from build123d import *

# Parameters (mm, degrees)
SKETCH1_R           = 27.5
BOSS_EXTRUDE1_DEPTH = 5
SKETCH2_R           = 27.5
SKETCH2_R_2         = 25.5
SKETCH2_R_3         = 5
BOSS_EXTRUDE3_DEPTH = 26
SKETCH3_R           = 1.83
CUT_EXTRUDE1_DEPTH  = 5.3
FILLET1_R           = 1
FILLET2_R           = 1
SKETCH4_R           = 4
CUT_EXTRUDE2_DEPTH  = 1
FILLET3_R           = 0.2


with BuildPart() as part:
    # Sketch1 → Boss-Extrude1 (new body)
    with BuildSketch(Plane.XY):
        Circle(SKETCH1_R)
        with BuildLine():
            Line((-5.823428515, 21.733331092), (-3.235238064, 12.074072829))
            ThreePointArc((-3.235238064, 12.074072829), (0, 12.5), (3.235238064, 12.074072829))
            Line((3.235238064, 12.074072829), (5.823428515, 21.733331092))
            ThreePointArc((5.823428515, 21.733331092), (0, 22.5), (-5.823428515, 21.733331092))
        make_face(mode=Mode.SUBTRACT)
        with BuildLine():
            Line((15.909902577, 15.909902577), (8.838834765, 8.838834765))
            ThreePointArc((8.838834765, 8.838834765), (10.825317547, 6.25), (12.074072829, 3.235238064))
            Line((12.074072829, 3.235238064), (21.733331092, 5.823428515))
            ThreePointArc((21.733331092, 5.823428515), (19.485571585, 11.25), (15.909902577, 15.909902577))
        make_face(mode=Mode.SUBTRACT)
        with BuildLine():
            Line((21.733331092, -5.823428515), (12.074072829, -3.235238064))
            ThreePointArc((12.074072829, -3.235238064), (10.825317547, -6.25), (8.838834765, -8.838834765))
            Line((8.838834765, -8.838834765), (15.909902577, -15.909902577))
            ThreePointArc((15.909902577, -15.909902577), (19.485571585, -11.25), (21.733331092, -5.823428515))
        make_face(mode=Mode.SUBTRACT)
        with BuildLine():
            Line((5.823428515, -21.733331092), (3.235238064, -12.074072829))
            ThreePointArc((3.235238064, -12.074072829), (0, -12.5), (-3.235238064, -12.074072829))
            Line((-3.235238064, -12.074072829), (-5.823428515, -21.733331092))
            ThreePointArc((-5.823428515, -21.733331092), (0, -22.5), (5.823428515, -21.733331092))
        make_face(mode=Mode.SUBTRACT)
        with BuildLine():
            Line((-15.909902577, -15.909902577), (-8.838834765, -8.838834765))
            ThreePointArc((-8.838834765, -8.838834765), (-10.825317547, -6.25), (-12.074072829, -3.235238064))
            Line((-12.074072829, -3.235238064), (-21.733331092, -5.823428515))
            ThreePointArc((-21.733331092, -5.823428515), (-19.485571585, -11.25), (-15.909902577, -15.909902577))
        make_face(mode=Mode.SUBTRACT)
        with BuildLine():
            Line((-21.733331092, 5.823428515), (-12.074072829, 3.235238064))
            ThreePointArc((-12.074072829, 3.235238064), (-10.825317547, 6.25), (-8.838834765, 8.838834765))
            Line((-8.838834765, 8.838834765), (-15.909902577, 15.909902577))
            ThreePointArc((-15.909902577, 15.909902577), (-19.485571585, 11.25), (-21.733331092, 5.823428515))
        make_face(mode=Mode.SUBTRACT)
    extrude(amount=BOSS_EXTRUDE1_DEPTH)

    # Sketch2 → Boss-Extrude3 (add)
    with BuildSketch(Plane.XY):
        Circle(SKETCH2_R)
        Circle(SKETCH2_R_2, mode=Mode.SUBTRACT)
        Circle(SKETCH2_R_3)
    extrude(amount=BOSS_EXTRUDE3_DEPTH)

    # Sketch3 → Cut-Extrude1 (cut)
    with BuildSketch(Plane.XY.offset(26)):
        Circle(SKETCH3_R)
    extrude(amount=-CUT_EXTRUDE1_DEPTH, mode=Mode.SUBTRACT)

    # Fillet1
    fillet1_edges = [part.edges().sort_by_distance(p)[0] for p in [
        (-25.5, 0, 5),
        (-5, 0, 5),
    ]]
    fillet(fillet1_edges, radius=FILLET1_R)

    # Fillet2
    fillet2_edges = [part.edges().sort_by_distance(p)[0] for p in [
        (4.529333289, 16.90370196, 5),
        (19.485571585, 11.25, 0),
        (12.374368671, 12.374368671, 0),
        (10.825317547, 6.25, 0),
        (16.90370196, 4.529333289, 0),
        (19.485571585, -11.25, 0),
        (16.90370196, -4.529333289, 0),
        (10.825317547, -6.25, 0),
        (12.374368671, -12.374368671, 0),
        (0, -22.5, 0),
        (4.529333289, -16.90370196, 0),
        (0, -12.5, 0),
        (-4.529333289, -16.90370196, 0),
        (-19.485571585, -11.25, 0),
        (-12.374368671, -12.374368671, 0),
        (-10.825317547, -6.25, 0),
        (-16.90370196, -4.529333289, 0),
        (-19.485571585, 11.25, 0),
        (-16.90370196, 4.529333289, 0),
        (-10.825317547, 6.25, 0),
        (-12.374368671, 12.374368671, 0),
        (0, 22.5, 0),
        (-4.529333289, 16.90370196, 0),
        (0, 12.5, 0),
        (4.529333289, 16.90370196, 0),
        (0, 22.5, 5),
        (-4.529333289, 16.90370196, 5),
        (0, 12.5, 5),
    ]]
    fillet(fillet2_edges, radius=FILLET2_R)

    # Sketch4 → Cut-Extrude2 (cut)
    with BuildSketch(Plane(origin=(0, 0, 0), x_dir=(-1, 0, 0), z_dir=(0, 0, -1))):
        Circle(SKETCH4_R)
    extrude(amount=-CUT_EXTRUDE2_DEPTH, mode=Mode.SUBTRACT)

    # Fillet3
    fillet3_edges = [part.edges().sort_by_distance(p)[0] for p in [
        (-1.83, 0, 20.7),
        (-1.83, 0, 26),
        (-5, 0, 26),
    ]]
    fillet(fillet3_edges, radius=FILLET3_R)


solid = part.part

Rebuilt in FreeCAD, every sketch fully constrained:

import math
import FreeCAD as App
import Part
import Sketcher
from FreeCAD import Vector
Q = App.Units.Quantity


def edges_at(feature, points):
    """Names of the edges that pass closest to the given points."""
    edges = feature.Shape.Edges
    near = lambda p: min(range(len(edges)), key=lambda i: edges[i].distToShape(Part.Vertex(*p))[0])
    return sorted({f"Edge{near(p) + 1}" for p in points})

doc = App.newDocument("Part")
body = doc.addObject("PartDesign::Body", "Body")

# Sketch on XY plane
sketch1 = body.newObject("Sketcher::SketchObject", "Sketch")
sketch1.AttachmentSupport = (doc.getObject("XY_Plane"), [""])
sketch1.MapMode = "FlatFace"
sketch1.addGeometry(Part.Circle(Vector(0, 0, 0), Vector(0, 0, 1), 27.5), False)
sketch1.addGeometry(Part.LineSegment(Vector(-8.838835, -8.838835, 0), Vector(-15.909903, -15.909903, 0)), False)
sketch1.addGeometry(Part.ArcOfCircle(Part.Circle(Vector(0, 0, 0), Vector(0, 0, 1), 22.5), math.radians(-165), math.radians(-135)), False)
sketch1.addGeometry(Part.LineSegment(Vector(-21.733331, -5.823429, 0), Vector(-12.074073, -3.235238, 0)), False)
sketch1.addGeometry(Part.ArcOfCircle(Part.Circle(Vector(0, 0, 0), Vector(0, 0, 1), 12.5), math.radians(-165), math.radians(-135)), False)
sketch1.addGeometry(Part.LineSegment(Vector(3.235238, -12.074073, 0), Vector(5.823429, -21.733331, 0)), False)
sketch1.addGeometry(Part.ArcOfCircle(Part.Circle(Vector(0, 0, 0), Vector(0, 0, 1), 22.5), math.radians(-105), math.radians(-75)), False)
sketch1.addGeometry(Part.LineSegment(Vector(-5.823429, -21.733331, 0), Vector(-3.235238, -12.074073, 0)), False)
sketch1.addGeometry(Part.ArcOfCircle(Part.Circle(Vector(0, 0, 0), Vector(0, 0, 1), 12.5), math.radians(-105), math.radians(-75)), False)
sketch1.addGeometry(Part.LineSegment(Vector(12.074073, -3.235238, 0), Vector(21.733331, -5.823429, 0)), False)
sketch1.addGeometry(Part.ArcOfCircle(Part.Circle(Vector(0, 0, 0), Vector(0, 0, 1), 22.5), math.radians(-45), math.radians(-15)), False)
sketch1.addGeometry(Part.LineSegment(Vector(15.909903, -15.909903, 0), Vector(8.838835, -8.838835, 0)), False)
sketch1.addGeometry(Part.ArcOfCircle(Part.Circle(Vector(0, 0, 0), Vector(0, 0, 1), 12.5), math.radians(-45), math.radians(-15)), False)
sketch1.addGeometry(Part.LineSegment(Vector(-12.074073, 3.235238, 0), Vector(-21.733331, 5.823429, 0)), False)
sketch1.addGeometry(Part.ArcOfCircle(Part.Circle(Vector(0, 0, 0), Vector(0, 0, 1), 22.5), math.radians(135), math.radians(165)), False)
sketch1.addGeometry(Part.LineSegment(Vector(-15.909903, 15.909903, 0), Vector(-8.838835, 8.838835, 0)), False)
sketch1.addGeometry(Part.ArcOfCircle(Part.Circle(Vector(0, 0, 0), Vector(0, 0, 1), 12.5), math.radians(135), math.radians(165)), False)
sketch1.addGeometry(Part.LineSegment(Vector(8.838835, 8.838835, 0), Vector(15.909903, 15.909903, 0)), False)
sketch1.addGeometry(Part.ArcOfCircle(Part.Circle(Vector(0, 0, 0), Vector(0, 0, 1), 22.5), math.radians(15), math.radians(45)), False)
sketch1.addGeometry(Part.LineSegment(Vector(21.733331, 5.823429, 0), Vector(12.074073, 3.235238, 0)), False)
sketch1.addGeometry(Part.ArcOfCircle(Part.Circle(Vector(0, 0, 0), Vector(0, 0, 1), 12.5), math.radians(15), math.radians(45)), False)
sketch1.addGeometry(Part.LineSegment(Vector(-3.235238, 12.074073, 0), Vector(-5.823429, 21.733331, 0)), False)
sketch1.addGeometry(Part.ArcOfCircle(Part.Circle(Vector(0, 0, 0), Vector(0, 0, 1), 22.5), math.radians(75), math.radians(105)), False)
sketch1.addGeometry(Part.LineSegment(Vector(5.823429, 21.733331, 0), Vector(3.235238, 12.074073, 0)), False)
sketch1.addGeometry(Part.ArcOfCircle(Part.Circle(Vector(0, 0, 0), Vector(0, 0, 1), 12.5), math.radians(75), math.radians(105)), False)
sketch1.addConstraint(Sketcher.Constraint("Coincident", 1, 2, 2, 2))
sketch1.addConstraint(Sketcher.Constraint("Coincident", 2, 1, 3, 1))
sketch1.addConstraint(Sketcher.Constraint("Coincident", 3, 2, 4, 1))
sketch1.addConstraint(Sketcher.Constraint("Coincident", 4, 2, 1, 1))
sketch1.addConstraint(Sketcher.Constraint("Coincident", 5, 2, 6, 2))
sketch1.addConstraint(Sketcher.Constraint("Coincident", 6, 1, 7, 1))
sketch1.addConstraint(Sketcher.Constraint("Coincident", 7, 2, 8, 1))
sketch1.addConstraint(Sketcher.Constraint("Coincident", 8, 2, 5, 1))
sketch1.addConstraint(Sketcher.Constraint("Coincident", 9, 2, 10, 2))
sketch1.addConstraint(Sketcher.Constraint("Coincident", 10, 1, 11, 1))
sketch1.addConstraint(Sketcher.Constraint("Coincident", 11, 2, 12, 1))
sketch1.addConstraint(Sketcher.Constraint("Coincident", 12, 2, 9, 1))
sketch1.addConstraint(Sketcher.Constraint("Coincident", 13, 2, 14, 2))
sketch1.addConstraint(Sketcher.Constraint("Coincident", 14, 1, 15, 1))
sketch1.addConstraint(Sketcher.Constraint("Coincident", 15, 2, 16, 1))
sketch1.addConstraint(Sketcher.Constraint("Coincident", 16, 2, 13, 1))
sketch1.addConstraint(Sketcher.Constraint("Coincident", 17, 2, 18, 2))
sketch1.addConstraint(Sketcher.Constraint("Coincident", 18, 1, 19, 1))
sketch1.addConstraint(Sketcher.Constraint("Coincident", 19, 2, 20, 1))
sketch1.addConstraint(Sketcher.Constraint("Coincident", 20, 2, 17, 1))
sketch1.addConstraint(Sketcher.Constraint("Coincident", 21, 2, 22, 2))
sketch1.addConstraint(Sketcher.Constraint("Coincident", 22, 1, 23, 1))
sketch1.addConstraint(Sketcher.Constraint("Coincident", 23, 2, 24, 1))
sketch1.addConstraint(Sketcher.Constraint("Coincident", 24, 2, 21, 1))
sketch1.addConstraint(Sketcher.Constraint("Coincident", 0, 3, -1, 1))
sketch1.addConstraint(Sketcher.Constraint("Coincident", 2, 3, -1, 1))
sketch1.addConstraint(Sketcher.Constraint("Coincident", 4, 3, -1, 1))
sketch1.addConstraint(Sketcher.Constraint("Coincident", 6, 3, -1, 1))
sketch1.addConstraint(Sketcher.Constraint("Coincident", 8, 3, -1, 1))
sketch1.addConstraint(Sketcher.Constraint("Coincident", 10, 3, -1, 1))
sketch1.addConstraint(Sketcher.Constraint("Coincident", 12, 3, -1, 1))
sketch1.addConstraint(Sketcher.Constraint("Coincident", 14, 3, -1, 1))
sketch1.addConstraint(Sketcher.Constraint("Coincident", 16, 3, -1, 1))
sketch1.addConstraint(Sketcher.Constraint("Coincident", 18, 3, -1, 1))
sketch1.addConstraint(Sketcher.Constraint("Coincident", 20, 3, -1, 1))
sketch1.addConstraint(Sketcher.Constraint("Coincident", 22, 3, -1, 1))
sketch1.addConstraint(Sketcher.Constraint("Coincident", 24, 3, -1, 1))
sketch1.addConstraint(Sketcher.Constraint("Equal", 2, 6))
sketch1.addConstraint(Sketcher.Constraint("Equal", 4, 8))
sketch1.addConstraint(Sketcher.Constraint("Equal", 6, 10))
sketch1.addConstraint(Sketcher.Constraint("Equal", 8, 12))
sketch1.addConstraint(Sketcher.Constraint("Equal", 10, 14))
sketch1.addConstraint(Sketcher.Constraint("Equal", 12, 16))
sketch1.addConstraint(Sketcher.Constraint("Equal", 14, 18))
sketch1.addConstraint(Sketcher.Constraint("Equal", 16, 20))
sketch1.addConstraint(Sketcher.Constraint("Equal", 18, 22))
sketch1.addConstraint(Sketcher.Constraint("Equal", 20, 24))
sketch1.addConstraint(Sketcher.Constraint("Perpendicular", 3, 5))
sketch1.addConstraint(Sketcher.Constraint("Perpendicular", 7, 9))
sketch1.addConstraint(Sketcher.Constraint("Perpendicular", 1, 11))
sketch1.addConstraint(Sketcher.Constraint("Parallel", 9, 13))
sketch1.addConstraint(Sketcher.Constraint("Parallel", 11, 15))
sketch1.addConstraint(Sketcher.Constraint("Perpendicular", 15, 17))
sketch1.addConstraint(Sketcher.Constraint("Perpendicular", 5, 19))
sketch1.addConstraint(Sketcher.Constraint("Perpendicular", 19, 21))
sketch1.addConstraint(Sketcher.Constraint("Perpendicular", 13, 23))
sketch1.addConstraint(Sketcher.Constraint("Horizontal", 5, 2, 6, 1))
sketch1.addConstraint(Sketcher.Constraint("Horizontal", 7, 2, 8, 2))
sketch1.addConstraint(Sketcher.Constraint("Horizontal", 2, 1, 9, 2))
sketch1.addConstraint(Sketcher.Constraint("Horizontal", 1, 2, 10, 1))
sketch1.addConstraint(Sketcher.Constraint("Horizontal", 4, 2, 11, 2))
sketch1.addConstraint(Sketcher.Constraint("Horizontal", 14, 1, 17, 2))
sketch1.addConstraint(Sketcher.Constraint("Horizontal", 13, 2, 18, 1))
sketch1.addConstraint(Sketcher.Constraint("Horizontal", 21, 2, 22, 1))
sketch1.addConstraint(Sketcher.Constraint("Vertical", 2, 1, 13, 2))
sketch1.addConstraint(Sketcher.Constraint("Vertical", 1, 2, 14, 1))
sketch1.addConstraint(Sketcher.Constraint("Vertical", 6, 1, 21, 2))
sketch1.addConstraint(Sketcher.Constraint("Diameter", 0, 55.0))
sketch1.addConstraint(Sketcher.Constraint("Radius", 2, 22.5))
sketch1.addConstraint(Sketcher.Constraint("Radius", 4, 12.5))
sketch1.addConstraint(Sketcher.Constraint("Angle", 3, Q("15 deg")))
sketch1.addConstraint(Sketcher.Constraint("DistanceX", 2, 1, -1, 1, 21.733331))
sketch1.addConstraint(Sketcher.Constraint("DistanceX", -1, 1, 5, 2, 5.823429))
sketch1.addConstraint(Sketcher.Constraint("DistanceX", 2, 1, 1, 2, 5.823429))
pad1 = body.newObject("PartDesign::Pad", "Pad")
pad1.Profile = sketch1
pad1.Length = 5

# Sketch on XY plane
sketch2 = body.newObject("Sketcher::SketchObject", "Sketch001")
sketch2.AttachmentSupport = (doc.getObject("XY_Plane"), [""])
sketch2.MapMode = "FlatFace"
sketch2.addGeometry(Part.Circle(Vector(0, 0, 0), Vector(0, 0, 1), 27.5), False)
sketch2.addGeometry(Part.Circle(Vector(0, 0, 0), Vector(0, 0, 1), 25.5), False)
sketch2.addGeometry(Part.Circle(Vector(0, 0, 0), Vector(0, 0, 1), 5), False)
sketch2.addConstraint(Sketcher.Constraint("Coincident", 0, 3, -1, 1))
sketch2.addConstraint(Sketcher.Constraint("Coincident", 1, 3, -1, 1))
sketch2.addConstraint(Sketcher.Constraint("Coincident", 2, 3, -1, 1))
sketch2.addConstraint(Sketcher.Constraint("Diameter", 0, 55.0))
sketch2.addConstraint(Sketcher.Constraint("Diameter", 1, 51.0))
sketch2.addConstraint(Sketcher.Constraint("Diameter", 2, 10.0))
pad2 = body.newObject("PartDesign::Pad", "Pad001")
pad2.Profile = sketch2
pad2.Length = 26

# Sketch on XY plane
sketch3 = body.newObject("Sketcher::SketchObject", "Sketch002")
sketch3.AttachmentSupport = (doc.getObject("XY_Plane"), [""])
sketch3.MapMode = "FlatFace"
sketch3.AttachmentOffset = App.Placement(Vector(0, 0, 26), App.Rotation())
sketch3.addGeometry(Part.Circle(Vector(0, 0, 0), Vector(0, 0, 1), 1.83), False)
sketch3.addConstraint(Sketcher.Constraint("Coincident", 0, 3, -1, 1))
sketch3.addConstraint(Sketcher.Constraint("Diameter", 0, 3.66))
pocket1 = body.newObject("PartDesign::Pocket", "Pocket")
pocket1.Profile = sketch3
pocket1.Length = 5.3
doc.recompute()

fillet = body.newObject("PartDesign::Fillet", "Fillet")
fillet.Base = (pocket1, edges_at(pocket1, [(-25.5, 0, 5), (-5, 0, 5)]))
fillet.Radius = 1
doc.recompute()

fillet2 = body.newObject("PartDesign::Fillet", "Fillet001")
fillet2.Base = (fillet, edges_at(fillet, [
    (4.529, 16.904, 5),
    (19.486, 11.25, 0),
    (12.374, 12.374, 0),
    (10.825, 6.25, 0),
    (16.904, 4.529, 0),
    (19.486, -11.25, 0),
    (16.904, -4.529, 0),
    (10.825, -6.25, 0),
    (12.374, -12.374, 0),
    (0, -22.5, 0),
    (4.529, -16.904, 0),
    (0, -12.5, 0),
    (-4.529, -16.904, 0),
    (-19.486, -11.25, 0),
    (-12.374, -12.374, 0),
    (-10.825, -6.25, 0),
    (-16.904, -4.529, 0),
    (-19.486, 11.25, 0),
    (-16.904, 4.529, 0),
    (-10.825, 6.25, 0),
    (-12.374, 12.374, 0),
    (0, 22.5, 0),
    (-4.529, 16.904, 0),
    (0, 12.5, 0),
    (4.529, 16.904, 0),
    (0, 22.5, 5),
    (-4.529, 16.904, 5),
    (0, 12.5, 5),
]))
fillet2.Radius = 1

# Sketch on XY plane
sketch4 = body.newObject("Sketcher::SketchObject", "Sketch003")
sketch4.AttachmentSupport = (doc.getObject("XY_Plane"), [""])
sketch4.MapMode = "FlatFace"
sketch4.addGeometry(Part.Circle(Vector(0, 0, 0), Vector(0, 0, 1), 4), False)
sketch4.addConstraint(Sketcher.Constraint("Coincident", 0, 3, -1, 1))
sketch4.addConstraint(Sketcher.Constraint("Diameter", 0, 8.0))
pocket2 = body.newObject("PartDesign::Pocket", "Pocket001")
pocket2.Profile = sketch4
pocket2.Length = 1
pocket2.Reversed = True
doc.recompute()

fillet3 = body.newObject("PartDesign::Fillet", "Fillet002")
fillet3.Base = (pocket2, edges_at(pocket2, [(-1.83, 0, 20.7), (-1.83, 0, 26), (-5, 0, 26)]))
fillet3.Radius = 0.2

doc.recompute()
